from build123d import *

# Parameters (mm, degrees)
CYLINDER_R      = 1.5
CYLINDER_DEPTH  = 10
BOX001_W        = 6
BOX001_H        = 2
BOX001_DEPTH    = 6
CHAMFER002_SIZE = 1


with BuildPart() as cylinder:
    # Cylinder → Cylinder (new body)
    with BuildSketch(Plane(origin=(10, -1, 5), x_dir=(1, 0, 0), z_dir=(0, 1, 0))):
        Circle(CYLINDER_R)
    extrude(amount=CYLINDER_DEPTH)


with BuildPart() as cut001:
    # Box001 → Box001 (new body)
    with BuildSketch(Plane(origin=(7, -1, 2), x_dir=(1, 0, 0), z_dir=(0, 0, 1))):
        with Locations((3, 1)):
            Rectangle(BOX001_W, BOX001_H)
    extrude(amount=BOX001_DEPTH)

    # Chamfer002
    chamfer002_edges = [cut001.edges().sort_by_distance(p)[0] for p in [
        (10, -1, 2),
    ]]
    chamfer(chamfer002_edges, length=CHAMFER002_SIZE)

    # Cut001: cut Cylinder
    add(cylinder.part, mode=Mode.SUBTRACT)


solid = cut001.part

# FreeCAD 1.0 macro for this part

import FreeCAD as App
import Part
import Sketcher
from FreeCAD import Vector
Q = App.Units.Quantity


def edges_at(feature, points):
    """Names of the edges that pass closest to the given points."""
    edges = feature.Shape.Edges
    near = lambda p: min(range(len(edges)), key=lambda i: edges[i].distToShape(Part.Vertex(*p))[0])
    return sorted({f"Edge{near(p) + 1}" for p in points})


def add_polygon(sketch, points):
    """Adds a closed chain of lines whose ends are joined by coincident constraints."""
    first, n = sketch.GeometryCount, len(points)
    for a, b in zip(points, points[1:] + points[:1]):
        sketch.addGeometry(Part.LineSegment(App.Vector(*a, 0), App.Vector(*b, 0)), False)
    for i in range(n):
        sketch.addConstraint(Sketcher.Constraint("Coincident", first + i, 2, first + (i + 1) % n, 1))

doc = App.newDocument("Part")
params = doc.addObject("Spreadsheet::Sheet", "Params")
for row, (alias, value) in enumerate([
    ("sketch1_diameter", "3 mm"),
    ("pad1_length", "10 mm"),
    ("sketch2_width", "6 mm"),
    ("sketch2_height", "2 mm"),
    ("pad2_length", "6 mm"),
    ("chamfer_size", "1 mm"),
], start=1):
    params.set(f"A{row}", alias)
    params.set(f"B{row}", "=" + value)
    params.setAlias(f"B{row}", alias)

body = doc.addObject("PartDesign::Body", "Body")

sketch1 = doc.addObject("Sketcher::SketchObject", "Sketch")
body.addObject(sketch1)
sketch1.AttachmentSupport = (doc.XZ_Plane, [""])
sketch1.MapMode = "FlatFace"
sketch1.AttachmentOffset = App.Placement(Vector(0, 0, 1), App.Rotation())
sketch1.addGeometry(Part.Circle(Vector(10, 5, 0), Vector(0, 0, 1), 1.5), False)
sketch1.addConstraint([
    Sketcher.Constraint("Diameter", 0, Q("3 mm")),
    Sketcher.Constraint("DistanceX", -1, 1, 0, 3, Q("10 mm")),
    Sketcher.Constraint("DistanceY", -1, 1, 0, 3, Q("5 mm")),
])
sketch1.setExpression("Constraints[0]", "Params.sketch1_diameter")
pad1 = doc.addObject("PartDesign::Pad", "Pad")
body.addObject(pad1)
pad1.Profile = sketch1
pad1.setExpression("Length", "Params.pad1_length")
pad1.Reversed = True
body2 = doc.addObject("PartDesign::Body", "Body001")

sketch2 = doc.addObject("Sketcher::SketchObject", "Sketch001")
body2.addObject(sketch2)
sketch2.AttachmentSupport = (doc.getObject("XY_Plane001"), [""])
sketch2.MapMode = "FlatFace"
sketch2.AttachmentOffset = App.Placement(Vector(0, 0, 2), App.Rotation())
add_polygon(sketch2, [(7, 1), (7, -1), (13, -1), (13, 1)])
sketch2.addConstraint([
    Sketcher.Constraint("Vertical", 0),
    Sketcher.Constraint("Horizontal", 1),
    Sketcher.Constraint("Vertical", 2),
    Sketcher.Constraint("Horizontal", 3),
    Sketcher.Constraint("DistanceX", 1, 1, 1, 2, Q("6 mm")),
    Sketcher.Constraint("DistanceY", 0, 2, 0, 1, Q("2 mm")),
    Sketcher.Constraint("DistanceX", -1, 1, 0, 2, Q("7 mm")),
    Sketcher.Constraint("DistanceY", 0, 2, -1, 1, Q("1 mm")),
])
sketch2.setExpression("Constraints[8]", "Params.sketch2_width")
sketch2.setExpression("Constraints[9]", "Params.sketch2_height")
pad2 = doc.addObject("PartDesign::Pad", "Pad001")
body2.addObject(pad2)
pad2.Profile = sketch2
pad2.setExpression("Length", "Params.pad2_length")
doc.recompute()

chamfer = doc.addObject("PartDesign::Chamfer", "Chamfer")
body2.addObject(chamfer)
chamfer.Base = (pad2, edges_at(pad2, [(10, -1, 2)]))
chamfer.setExpression("Size", "Params.chamfer_size")
doc.recompute()

boolean = doc.addObject("PartDesign::Boolean", "Boolean")
body2.addObject(boolean)
boolean.Type = "Cut"
boolean.addObjects([body])

doc.recompute()
